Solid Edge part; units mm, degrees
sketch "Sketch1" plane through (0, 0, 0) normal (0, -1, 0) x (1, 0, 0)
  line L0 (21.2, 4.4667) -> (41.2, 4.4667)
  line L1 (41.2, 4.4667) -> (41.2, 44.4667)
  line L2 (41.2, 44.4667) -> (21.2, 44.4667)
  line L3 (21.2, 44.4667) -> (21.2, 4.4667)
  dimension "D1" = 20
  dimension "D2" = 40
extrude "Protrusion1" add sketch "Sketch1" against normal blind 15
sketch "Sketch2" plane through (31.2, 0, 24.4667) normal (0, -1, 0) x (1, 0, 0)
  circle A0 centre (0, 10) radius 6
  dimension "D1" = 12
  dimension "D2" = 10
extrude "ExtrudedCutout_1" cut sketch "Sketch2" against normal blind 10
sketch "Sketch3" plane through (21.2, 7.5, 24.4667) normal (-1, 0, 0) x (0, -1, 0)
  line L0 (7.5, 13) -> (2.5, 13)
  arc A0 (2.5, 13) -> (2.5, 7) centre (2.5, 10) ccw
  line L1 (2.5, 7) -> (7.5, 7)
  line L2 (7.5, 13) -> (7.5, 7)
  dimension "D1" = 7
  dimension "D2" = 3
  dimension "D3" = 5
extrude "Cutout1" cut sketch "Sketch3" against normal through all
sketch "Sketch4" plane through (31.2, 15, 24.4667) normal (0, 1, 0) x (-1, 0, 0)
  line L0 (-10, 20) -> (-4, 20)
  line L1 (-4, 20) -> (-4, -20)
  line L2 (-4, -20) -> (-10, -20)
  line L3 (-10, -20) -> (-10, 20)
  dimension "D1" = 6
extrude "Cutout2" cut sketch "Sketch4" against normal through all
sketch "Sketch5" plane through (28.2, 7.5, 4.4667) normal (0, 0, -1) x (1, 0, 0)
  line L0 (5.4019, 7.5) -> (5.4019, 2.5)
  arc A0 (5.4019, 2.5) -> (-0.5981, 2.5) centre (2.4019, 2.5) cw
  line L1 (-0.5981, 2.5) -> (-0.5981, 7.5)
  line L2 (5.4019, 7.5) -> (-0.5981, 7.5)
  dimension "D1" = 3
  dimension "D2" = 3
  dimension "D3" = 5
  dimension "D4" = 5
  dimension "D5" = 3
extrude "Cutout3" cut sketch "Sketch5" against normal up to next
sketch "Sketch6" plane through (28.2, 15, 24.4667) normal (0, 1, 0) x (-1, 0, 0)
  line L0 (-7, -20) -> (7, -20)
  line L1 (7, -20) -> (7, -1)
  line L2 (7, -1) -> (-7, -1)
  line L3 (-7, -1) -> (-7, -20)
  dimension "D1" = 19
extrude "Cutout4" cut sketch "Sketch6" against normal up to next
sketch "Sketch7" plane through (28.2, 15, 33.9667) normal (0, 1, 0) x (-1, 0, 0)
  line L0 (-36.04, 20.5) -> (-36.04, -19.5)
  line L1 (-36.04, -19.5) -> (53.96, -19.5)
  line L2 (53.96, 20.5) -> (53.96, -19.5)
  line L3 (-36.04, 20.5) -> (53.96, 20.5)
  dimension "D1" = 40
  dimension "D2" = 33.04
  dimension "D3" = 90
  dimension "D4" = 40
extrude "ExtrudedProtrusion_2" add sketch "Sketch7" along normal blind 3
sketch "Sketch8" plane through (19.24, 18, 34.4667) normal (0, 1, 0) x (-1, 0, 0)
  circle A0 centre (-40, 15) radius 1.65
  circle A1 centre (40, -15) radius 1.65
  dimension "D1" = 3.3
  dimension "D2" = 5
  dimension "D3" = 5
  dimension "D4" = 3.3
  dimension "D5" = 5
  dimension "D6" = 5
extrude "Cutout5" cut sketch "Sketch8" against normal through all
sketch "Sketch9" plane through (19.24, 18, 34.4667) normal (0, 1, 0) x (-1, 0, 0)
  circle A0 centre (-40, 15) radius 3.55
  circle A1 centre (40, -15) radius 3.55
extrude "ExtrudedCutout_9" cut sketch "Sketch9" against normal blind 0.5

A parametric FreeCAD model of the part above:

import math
import FreeCAD as App
import Part
import Sketcher


def add_polygon(sketch, points):
    """Adds a closed chain of lines whose ends are joined by coincident constraints."""
    first, n = sketch.GeometryCount, len(points)
    for a, b in zip(points, points[1:] + points[:1]):
        sketch.addGeometry(Part.LineSegment(App.Vector(*a, 0), App.Vector(*b, 0)), False)
    for i in range(n):
        sketch.addConstraint(Sketcher.Constraint("Coincident", first + i, 2, first + (i + 1) % n, 1))

doc = App.newDocument("Part")
body = doc.addObject("PartDesign::Body", "Body")

# Sketch on XZ plane
sketch1 = doc.addObject("Sketcher::SketchObject", "Sketch")
body.addObject(sketch1)
sketch1.AttachmentSupport = (doc.XZ_Plane, [""])
sketch1.MapMode = "FlatFace"
add_polygon(sketch1, [(21, 44), (21, 4), (41, 4), (41, 44)])  # lines 0-3
sketch1.addConstraint([
    Sketcher.Constraint("Vertical", 0),
    Sketcher.Constraint("Horizontal", 1),
    Sketcher.Constraint("Vertical", 2),
    Sketcher.Constraint("Horizontal", 3),
    Sketcher.Constraint("DistanceX", -1, 1, 0, 2, 21.2),
    Sketcher.Constraint("DistanceX", -1, 1, 1, 2, 41.2),
    Sketcher.Constraint("DistanceY", 0, 2, 0, 1, 40.0),
    Sketcher.Constraint("DistanceY", -1, 1, 0, 2, 4.4667),
])
pad1 = doc.addObject("PartDesign::Pad", "Pad")
body.addObject(pad1)
pad1.Profile = sketch1
pad1.Length = 15
pad1.Reversed = True

# Sketch on XZ plane
sketch2 = doc.addObject("Sketcher::SketchObject", "Sketch001")
body.addObject(sketch2)
sketch2.AttachmentSupport = (doc.XZ_Plane, [""])
sketch2.MapMode = "FlatFace"
sketch2.addGeometry(Part.Circle(App.Vector(31, 34, 0), App.Vector(0, 0, 1), 6), False)
sketch2.addConstraint([
    Sketcher.Constraint("Diameter", 0, 12.0),
    Sketcher.Constraint("DistanceX", -1, 1, 0, 3, 31.2),
    Sketcher.Constraint("DistanceY", -1, 1, 0, 3, 34.4667),
])
pocket1 = doc.addObject("PartDesign::Pocket", "Pocket")
body.addObject(pocket1)
pocket1.Profile = sketch2
pocket1.Length = 10

# Sketch on YZ plane
sketch3 = doc.addObject("Sketcher::SketchObject", "Sketch002")
body.addObject(sketch3)
sketch3.AttachmentSupport = (doc.YZ_Plane, [""])
sketch3.MapMode = "FlatFace"
sketch3.AttachmentOffset = App.Placement(App.Vector(0, 0, 21.2), App.Rotation())
sketch3.addGeometry([
    Part.LineSegment(App.Vector(0, 31.5, 0), App.Vector(0, 37.5, 0)),
    Part.LineSegment(App.Vector(0, 37.5, 0), App.Vector(5, 37.5, 0)),
    Part.ArcOfCircle(Part.Circle(App.Vector(5, 34.5, 0), App.Vector(0, 0, 1), 3), math.radians(-90), math.radians(90)),
    Part.LineSegment(App.Vector(5, 31.5, 0), App.Vector(0, 31.5, 0)),
], False)
sketch3.addConstraint([
    Sketcher.Constraint("Coincident", 0, 2, 1, 1),
    Sketcher.Constraint("Tangent", 1, 2, 2, 2),
    Sketcher.Constraint("Tangent", 2, 1, 3, 1),
    Sketcher.Constraint("Coincident", 3, 2, 0, 1),
    Sketcher.Constraint("Vertical", 0),
    Sketcher.Constraint("Horizontal", 1),
    Sketcher.Constraint("Horizontal", 3),
    Sketcher.Constraint("PointOnObject", 0, 2, -2),
    Sketcher.Constraint("Radius", 2, 3.0),
    Sketcher.Constraint("DistanceX", 1, 1, 1, 2, 5.0),
    Sketcher.Constraint("DistanceY", -1, 1, 2, 3, 34.4667),
])
pocket2 = doc.addObject("PartDesign::Pocket", "Pocket001")
body.addObject(pocket2)
pocket2.Profile = sketch3
pocket2.Type = "ThroughAll"
pocket2.Reversed = True

# Sketch on XZ plane
sketch4 = doc.addObject("Sketcher::SketchObject", "Sketch003")
body.addObject(sketch4)
sketch4.AttachmentSupport = (doc.XZ_Plane, [""])
sketch4.MapMode = "FlatFace"
sketch4.AttachmentOffset = App.Placement(App.Vector(0, 0, -15), App.Rotation())
add_polygon(sketch4, [(35, 44), (41, 44), (41, 4), (35, 4)])  # lines 0-3
sketch4.addConstraint([
    Sketcher.Constraint("Horizontal", 0),
    Sketcher.Constraint("Vertical", 1),
    Sketcher.Constraint("Horizontal", 2),
    Sketcher.Constraint("Vertical", 3),
    Sketcher.Constraint("DistanceX", 0, 1, 0, 2, 6.0),
    Sketcher.Constraint("DistanceY", 1, 2, 1, 1, 40.0),
    Sketcher.Constraint("DistanceX", -1, 1, 0, 2, 41.2),
    Sketcher.Constraint("DistanceY", -1, 1, 0, 2, 44.4667),
])
pocket3 = doc.addObject("PartDesign::Pocket", "Pocket002")
body.addObject(pocket3)
pocket3.Profile = sketch4
pocket3.Type = "ThroughAll"
pocket3.Reversed = True

# Sketch on XY plane
sketch5 = doc.addObject("Sketcher::SketchObject", "Sketch004")
body.addObject(sketch5)
sketch5.AttachmentSupport = (doc.XY_Plane, [""])
sketch5.MapMode = "FlatFace"
sketch5.AttachmentOffset = App.Placement(App.Vector(0, 0, 4.4667), App.Rotation())
sketch5.addGeometry([
    Part.LineSegment(App.Vector(33.6, 5, 0), App.Vector(33.6, 0, 0)),
    Part.LineSegment(App.Vector(33.6, 0, 0), App.Vector(27.6, 0, 0)),
    Part.LineSegment(App.Vector(27.6, 0, 0), App.Vector(27.6, 5, 0)),
    Part.ArcOfCircle(Part.Circle(App.Vector(30.6, 5, 0), App.Vector(0, 0, 1), 3), math.radians(0), math.radians(180)),
], False)
sketch5.addConstraint([
    Sketcher.Constraint("Coincident", 0, 2, 1, 1),
    Sketcher.Constraint("Coincident", 1, 2, 2, 1),
    Sketcher.Constraint("Tangent", 2, 2, 3, 2),
    Sketcher.Constraint("Tangent", 3, 1, 0, 1),
    Sketcher.Constraint("Vertical", 0),
    Sketcher.Constraint("Horizontal", 1),
    Sketcher.Constraint("Vertical", 2),
    Sketcher.Constraint("PointOnObject", 0, 2, -1),
    Sketcher.Constraint("Radius", 3, 3.0),
    Sketcher.Constraint("DistanceY", 0, 2, 0, 1, 5.0),
    Sketcher.Constraint("DistanceX", -1, 1, 3, 3, 30.602),
])
pocket4 = doc.addObject("PartDesign::Pocket", "Pocket003")
body.addObject(pocket4)
pocket4.Profile = sketch5
pocket4.Type = "UpToFirst"
pocket4.Reversed = True

# Sketch on XZ plane
sketch6 = doc.addObject("Sketcher::SketchObject", "Sketch005")
body.addObject(sketch6)
sketch6.AttachmentSupport = (doc.XZ_Plane, [""])
sketch6.MapMode = "FlatFace"
sketch6.AttachmentOffset = App.Placement(App.Vector(0, 0, -15), App.Rotation())
add_polygon(sketch6, [(35, 23), (35, 4), (21, 4), (21, 23)])  # lines 0-3
sketch6.addConstraint([
    Sketcher.Constraint("Vertical", 0),
    Sketcher.Constraint("Horizontal", 1),
    Sketcher.Constraint("Vertical", 2),
    Sketcher.Constraint("Horizontal", 3),
    Sketcher.Constraint("DistanceX", 1, 2, 1, 1, 14.0),
    Sketcher.Constraint("DistanceY", 0, 2, 0, 1, 19.0),
    Sketcher.Constraint("DistanceX", -1, 1, 0, 2, 35.2),
    Sketcher.Constraint("DistanceY", -1, 1, 0, 2, 4.4667),
])
pocket5 = doc.addObject("PartDesign::Pocket", "Pocket004")
body.addObject(pocket5)
pocket5.Profile = sketch6
pocket5.Type = "UpToFirst"
pocket5.Reversed = True

# Sketch on XZ plane
sketch7 = doc.addObject("Sketcher::SketchObject", "Sketch006")
body.addObject(sketch7)
sketch7.AttachmentSupport = (doc.XZ_Plane, [""])
sketch7.MapMode = "FlatFace"
sketch7.AttachmentOffset = App.Placement(App.Vector(0, 0, -15), App.Rotation())
add_polygon(sketch7, [(-26, 54), (64, 54), (64, 14), (-26, 14)])  # lines 0-3
sketch7.addConstraint([
    Sketcher.Constraint("Horizontal", 0),
    Sketcher.Constraint("Vertical", 1),
    Sketcher.Constraint("Horizontal", 2),
    Sketcher.Constraint("Vertical", 3),
    Sketcher.Constraint("DistanceX", 0, 1, 0, 2, 90.0),
    Sketcher.Constraint("DistanceY", 1, 2, 1, 1, 40.0),
    Sketcher.Constraint("DistanceX", -1, 1, 0, 2, 64.24),
    Sketcher.Constraint("DistanceY", -1, 1, 0, 2, 54.4667),
])
pad2 = doc.addObject("PartDesign::Pad", "Pad001")
body.addObject(pad2)
pad2.Profile = sketch7
pad2.Length = 3
pad2.Reversed = True

# Sketch on XZ plane
sketch8 = doc.addObject("Sketcher::SketchObject", "Sketch007")
body.addObject(sketch8)
sketch8.AttachmentSupport = (doc.XZ_Plane, [""])
sketch8.MapMode = "FlatFace"
sketch8.AttachmentOffset = App.Placement(App.Vector(0, 0, -18), App.Rotation())
sketch8.addGeometry([
    Part.Circle(App.Vector(59.2, 49.5, 0), App.Vector(0, 0, 1), 1.6),
    Part.Circle(App.Vector(-20.8, 19.5, 0), App.Vector(0, 0, 1), 1.6),
], False)
sketch8.addConstraint([
    Sketcher.Constraint("Equal", 0, 1),
    Sketcher.Constraint("Diameter", 0, 3.3),
    Sketcher.Constraint("DistanceX", 1, 3, 0, 3, 80.0),
    Sketcher.Constraint("DistanceY", 1, 3, 0, 3, 30.0),
    Sketcher.Constraint("DistanceX", -1, 1, 0, 3, 59.24),
    Sketcher.Constraint("DistanceY", -1, 1, 0, 3, 49.4667),
])
pocket6 = doc.addObject("PartDesign::Pocket", "Pocket005")
body.addObject(pocket6)
pocket6.Profile = sketch8
pocket6.Type = "ThroughAll"
pocket6.Reversed = True

# Sketch on XZ plane
sketch9 = doc.addObject("Sketcher::SketchObject", "Sketch008")
body.addObject(sketch9)
sketch9.AttachmentSupport = (doc.XZ_Plane, [""])
sketch9.MapMode = "FlatFace"
sketch9.AttachmentOffset = App.Placement(App.Vector(0, 0, -18), App.Rotation())
sketch9.addGeometry([
    Part.Circle(App.Vector(59.2, 49.5, 0), App.Vector(0, 0, 1), 3.5),
    Part.Circle(App.Vector(-20.8, 19.5, 0), App.Vector(0, 0, 1), 3.5),
], False)
sketch9.addConstraint([
    Sketcher.Constraint("Equal", 0, 1),
    Sketcher.Constraint("Diameter", 0, 7.1),
    Sketcher.Constraint("DistanceX", 1, 3, 0, 3, 80.0),
    Sketcher.Constraint("DistanceY", 1, 3, 0, 3, 30.0),
    Sketcher.Constraint("DistanceX", -1, 1, 0, 3, 59.24),
    Sketcher.Constraint("DistanceY", -1, 1, 0, 3, 49.4667),
])
pocket7 = doc.addObject("PartDesign::Pocket", "Pocket006")
body.addObject(pocket7)
pocket7.Profile = sketch9
pocket7.Length = 0.5
pocket7.Reversed = True

doc.recompute()
